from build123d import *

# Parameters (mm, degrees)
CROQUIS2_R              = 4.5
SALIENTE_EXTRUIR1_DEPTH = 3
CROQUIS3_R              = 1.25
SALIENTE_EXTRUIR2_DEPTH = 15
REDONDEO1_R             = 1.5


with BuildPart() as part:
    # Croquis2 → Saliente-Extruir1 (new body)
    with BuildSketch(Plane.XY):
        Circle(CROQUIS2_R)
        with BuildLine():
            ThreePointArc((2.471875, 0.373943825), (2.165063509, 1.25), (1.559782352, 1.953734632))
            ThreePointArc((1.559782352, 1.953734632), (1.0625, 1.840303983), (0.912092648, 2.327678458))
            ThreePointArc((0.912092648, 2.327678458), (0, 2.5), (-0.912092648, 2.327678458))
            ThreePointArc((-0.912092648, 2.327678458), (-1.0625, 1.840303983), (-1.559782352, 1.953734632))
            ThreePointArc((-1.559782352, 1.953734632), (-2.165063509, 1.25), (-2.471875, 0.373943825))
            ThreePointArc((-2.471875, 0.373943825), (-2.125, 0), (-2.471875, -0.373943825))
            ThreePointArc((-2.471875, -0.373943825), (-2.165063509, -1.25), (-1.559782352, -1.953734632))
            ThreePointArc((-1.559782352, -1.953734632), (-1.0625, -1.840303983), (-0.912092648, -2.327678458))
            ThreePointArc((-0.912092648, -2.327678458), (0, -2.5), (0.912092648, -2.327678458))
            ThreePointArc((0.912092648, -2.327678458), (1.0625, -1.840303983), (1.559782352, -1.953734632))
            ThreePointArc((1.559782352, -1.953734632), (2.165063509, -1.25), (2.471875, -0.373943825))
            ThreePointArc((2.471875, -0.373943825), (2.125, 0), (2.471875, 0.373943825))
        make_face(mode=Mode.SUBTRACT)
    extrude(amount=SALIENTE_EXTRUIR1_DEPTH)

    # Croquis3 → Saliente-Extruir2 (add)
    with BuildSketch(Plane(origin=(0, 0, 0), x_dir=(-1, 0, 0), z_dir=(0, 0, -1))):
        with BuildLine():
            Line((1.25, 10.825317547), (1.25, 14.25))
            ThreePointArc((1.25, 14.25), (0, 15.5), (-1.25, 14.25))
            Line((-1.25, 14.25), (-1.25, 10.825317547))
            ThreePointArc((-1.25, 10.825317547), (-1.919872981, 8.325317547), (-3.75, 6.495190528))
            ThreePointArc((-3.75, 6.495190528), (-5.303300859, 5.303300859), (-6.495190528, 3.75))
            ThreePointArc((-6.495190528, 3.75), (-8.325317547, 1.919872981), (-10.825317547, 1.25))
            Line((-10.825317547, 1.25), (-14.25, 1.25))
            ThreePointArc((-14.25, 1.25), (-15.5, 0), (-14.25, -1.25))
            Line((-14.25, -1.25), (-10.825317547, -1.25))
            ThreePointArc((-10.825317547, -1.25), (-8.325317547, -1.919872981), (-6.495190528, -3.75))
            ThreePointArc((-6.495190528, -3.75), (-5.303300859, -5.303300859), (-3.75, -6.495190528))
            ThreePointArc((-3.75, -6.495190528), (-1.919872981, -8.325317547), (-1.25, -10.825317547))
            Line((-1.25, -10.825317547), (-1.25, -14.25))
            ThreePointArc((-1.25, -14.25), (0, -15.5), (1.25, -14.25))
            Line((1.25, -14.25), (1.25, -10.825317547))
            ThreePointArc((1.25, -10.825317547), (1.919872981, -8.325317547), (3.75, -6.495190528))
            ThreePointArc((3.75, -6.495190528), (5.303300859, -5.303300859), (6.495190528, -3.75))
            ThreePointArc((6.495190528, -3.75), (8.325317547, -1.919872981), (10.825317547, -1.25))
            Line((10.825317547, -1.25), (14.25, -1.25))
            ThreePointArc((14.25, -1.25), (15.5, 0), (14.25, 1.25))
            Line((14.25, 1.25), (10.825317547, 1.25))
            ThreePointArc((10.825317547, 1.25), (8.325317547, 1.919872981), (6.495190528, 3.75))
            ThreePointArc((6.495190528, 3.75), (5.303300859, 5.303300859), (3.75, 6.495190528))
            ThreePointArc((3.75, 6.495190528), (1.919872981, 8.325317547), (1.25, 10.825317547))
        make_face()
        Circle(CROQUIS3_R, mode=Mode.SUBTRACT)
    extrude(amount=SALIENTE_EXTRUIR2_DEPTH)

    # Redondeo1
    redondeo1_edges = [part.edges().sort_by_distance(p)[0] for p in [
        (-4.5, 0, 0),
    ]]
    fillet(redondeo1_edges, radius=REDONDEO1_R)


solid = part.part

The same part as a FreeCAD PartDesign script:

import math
import FreeCAD as App
import Part
import Sketcher

V = App.Vector


def edges_at(feature, points):
    """Names of the edges that pass closest to the given points."""
    edges = feature.Shape.Edges
    near = lambda p: min(range(len(edges)), key=lambda i: edges[i].distToShape(Part.Vertex(*p))[0])
    return sorted({f"Edge{near(p) + 1}" for p in points})

doc = App.newDocument("Part")
params = doc.addObject("Spreadsheet::Sheet", "Params")
for row, (alias, value) in enumerate([
    ("sketch1_diameter", "9 mm"),
    ("sketch1_radius", "2.5 mm"),
    ("pad1_length", "3 mm"),
    ("sketch2_radius", "5 mm"),
    ("sketch2_diameter", "2.5 mm"),
    ("sketch2_radius2", "7.5 mm"),
    ("pad2_length", "15 mm"),
    ("fillet_radius", "1.5 mm"),
], start=1):
    params.set(f"A{row}", alias)
    params.set(f"B{row}", "=" + value)
    params.setAlias(f"B{row}", alias)

body = doc.addObject("PartDesign::Body", "Body")

sketch1 = body.newObject("Sketcher::SketchObject", "Sketch")
sketch1.AttachmentSupport = (doc.getObject("XY_Plane"), [""])
sketch1.MapMode = "FlatFace"
sketch1.addGeometry([
    Part.Circle(V(0, 0, 0), V(0, 0, 1), 4.5),
    Part.ArcOfCircle(Part.Circle(V(0, 0, 0), V(0, 0, 1), 2.5), math.radians(9), math.radians(51)),
    Part.ArcOfCircle(Part.Circle(V(2.5, 0, 0), V(0, 0, 1), 0.38), math.radians(94), math.radians(266)),
    Part.ArcOfCircle(Part.Circle(V(0, 0, 0), V(0, 0, 1), 2.5), math.radians(-51), math.radians(-9)),
    Part.ArcOfCircle(Part.Circle(V(1.25, -2.17, 0), V(0, 0, 1), 0.38), math.radians(34), math.radians(206)),
    Part.ArcOfCircle(Part.Circle(V(0, 0, 0), V(0, 0, 1), 2.5), math.radians(-111), math.radians(-69)),
    Part.ArcOfCircle(Part.Circle(V(-1.25, -2.17, 0), V(0, 0, 1), 0.38), math.radians(-26), math.radians(146)),
    Part.ArcOfCircle(Part.Circle(V(0, 0, 0), V(0, 0, 1), 2.5), math.radians(-171), math.radians(-129)),
    Part.ArcOfCircle(Part.Circle(V(-2.5, 0, 0), V(0, 0, 1), 0.38), math.radians(-86), math.radians(86)),
    Part.ArcOfCircle(Part.Circle(V(0, 0, 0), V(0, 0, 1), 2.5), math.radians(129), math.radians(171)),
    Part.ArcOfCircle(Part.Circle(V(-1.25, 2.17, 0), V(0, 0, 1), 0.38), math.radians(-146), math.radians(26)),
    Part.ArcOfCircle(Part.Circle(V(0, 0, 0), V(0, 0, 1), 2.5), math.radians(69), math.radians(111)),
    Part.ArcOfCircle(Part.Circle(V(1.25, 2.17, 0), V(0, 0, 1), 0.38), math.radians(154), math.radians(326)),
], False)
sketch1.addConstraint([
    Sketcher.Constraint("Coincident", 1, 1, 2, 1),
    Sketcher.Constraint("Coincident", 2, 2, 3, 2),
    Sketcher.Constraint("Coincident", 3, 1, 4, 1),
    Sketcher.Constraint("Coincident", 4, 2, 5, 2),
    Sketcher.Constraint("Coincident", 5, 1, 6, 1),
    Sketcher.Constraint("Coincident", 6, 2, 7, 2),
    Sketcher.Constraint("Coincident", 7, 1, 8, 1),
    Sketcher.Constraint("Coincident", 8, 2, 9, 2),
    Sketcher.Constraint("Coincident", 9, 1, 10, 1),
    Sketcher.Constraint("Coincident", 10, 2, 11, 2),
    Sketcher.Constraint("Coincident", 11, 1, 12, 1),
    Sketcher.Constraint("Coincident", 12, 2, 1, 2),
    Sketcher.Constraint("Coincident", 0, 3, -1, 1),
    Sketcher.Constraint("Coincident", 1, 3, -1, 1),
    Sketcher.Constraint("Coincident", 3, 3, -1, 1),
    Sketcher.Constraint("Coincident", 5, 3, -1, 1),
    Sketcher.Constraint("Coincident", 7, 3, -1, 1),
    Sketcher.Constraint("Coincident", 9, 3, -1, 1),
    Sketcher.Constraint("Coincident", 11, 3, -1, 1),
    Sketcher.Constraint("Equal", 1, 3),
    Sketcher.Constraint("Equal", 2, 4),
    Sketcher.Constraint("Equal", 3, 5),
    Sketcher.Constraint("Equal", 4, 6),
    Sketcher.Constraint("Equal", 5, 7),
    Sketcher.Constraint("Equal", 6, 8),
    Sketcher.Constraint("Equal", 7, 9),
    Sketcher.Constraint("Equal", 8, 10),
    Sketcher.Constraint("Equal", 9, 11),
    Sketcher.Constraint("Equal", 10, 12),
    Sketcher.Constraint("Symmetric", 2, 3, 8, 3, -1, 1),
    Sketcher.Constraint("Symmetric", 4, 3, 10, 3, -1, 1),
    Sketcher.Constraint("Symmetric", 6, 3, 12, 3, -1, 1),
    Sketcher.Constraint("Symmetric", 4, 3, 6, 3, -2),
    Sketcher.Constraint("PointOnObject", 2, 3, -1),
    Sketcher.Constraint("Diameter", 0, 9.0),
    Sketcher.Constraint("Radius", 1, 2.5),
    Sketcher.Constraint("Radius", 2, 0.375),
    Sketcher.Constraint("DistanceX", -1, 1, 2, 3, 2.5),
    Sketcher.Constraint("DistanceX", 6, 3, 4, 3, 2.5),
    Sketcher.Constraint("DistanceY", 4, 2, -1, 1, 2.327678),
])
sketch1.setExpression("Constraints[34]", "Params.sketch1_diameter")
sketch1.setExpression("Constraints[35]", "Params.sketch1_radius")
pad1 = body.newObject("PartDesign::Pad", "Pad")
pad1.Profile = sketch1
pad1.setExpression("Length", "Params.pad1_length")

sketch2 = body.newObject("Sketcher::SketchObject", "Sketch001")
sketch2.AttachmentSupport = (doc.getObject("XY_Plane"), [""])
sketch2.MapMode = "FlatFace"
sketch2.addGeometry([
    Part.LineSegment(V(-1.2, 10.8, 0), V(-1.2, 14.2, 0)),
    Part.ArcOfCircle(Part.Circle(V(0, 14.2, 0), V(0, 0, 1), 1.2), math.radians(0), math.radians(180)),
    Part.LineSegment(V(1.2, 14.2, 0), V(1.2, 10.8, 0)),
    Part.ArcOfCircle(Part.Circle(V(6.2, 10.8, 0), V(0, 0, 1), 5), math.radians(180), math.radians(240)),
    Part.ArcOfCircle(Part.Circle(V(0, 0, 0), V(0, 0, 1), 7.5), math.radians(30), math.radians(60)),
    Part.ArcOfCircle(Part.Circle(V(10.8, 6.2, 0), V(0, 0, 1), 5), math.radians(-150), math.radians(-90)),
    Part.LineSegment(V(10.8, 1.2, 0), V(14.2, 1.2, 0)),
    Part.ArcOfCircle(Part.Circle(V(14.2, 0, 0), V(0, 0, 1), 1.2), math.radians(-90), math.radians(90)),
    Part.LineSegment(V(14.2, -1.2, 0), V(10.8, -1.2, 0)),
    Part.ArcOfCircle(Part.Circle(V(10.8, -6.2, 0), V(0, 0, 1), 5), math.radians(90), math.radians(150)),
    Part.ArcOfCircle(Part.Circle(V(0, 0, 0), V(0, 0, 1), 7.5), math.radians(-60), math.radians(-30)),
    Part.ArcOfCircle(Part.Circle(V(6.2, -10.8, 0), V(0, 0, 1), 5), math.radians(120), math.radians(180)),
    Part.LineSegment(V(1.2, -10.8, 0), V(1.2, -14.2, 0)),
    Part.ArcOfCircle(Part.Circle(V(0, -14.2, 0), V(0, 0, 1), 1.2), math.radians(180), math.radians(360)),
    Part.LineSegment(V(-1.2, -14.2, 0), V(-1.2, -10.8, 0)),
    Part.ArcOfCircle(Part.Circle(V(-6.2, -10.8, 0), V(0, 0, 1), 5), math.radians(0), math.radians(60)),
    Part.ArcOfCircle(Part.Circle(V(0, 0, 0), V(0, 0, 1), 7.5), math.radians(-150), math.radians(-120)),
    Part.ArcOfCircle(Part.Circle(V(-10.8, -6.2, 0), V(0, 0, 1), 5), math.radians(30), math.radians(90)),
    Part.LineSegment(V(-10.8, -1.2, 0), V(-14.2, -1.2, 0)),
    Part.ArcOfCircle(Part.Circle(V(-14.2, 0, 0), V(0, 0, 1), 1.2), math.radians(90), math.radians(270)),
    Part.LineSegment(V(-14.2, 1.2, 0), V(-10.8, 1.2, 0)),
    Part.ArcOfCircle(Part.Circle(V(-10.8, 6.2, 0), V(0, 0, 1), 5), math.radians(-90), math.radians(-30)),
    Part.ArcOfCircle(Part.Circle(V(0, 0, 0), V(0, 0, 1), 7.5), math.radians(120), math.radians(150)),
    Part.ArcOfCircle(Part.Circle(V(-6.2, 10.8, 0), V(0, 0, 1), 5), math.radians(-60), math.radians(0)),
    Part.Circle(V(0, 0, 0), V(0, 0, 1), 1.2),
], False)
sketch2.addConstraint([
    Sketcher.Constraint("Tangent", 0, 2, 1, 2),
    Sketcher.Constraint("Tangent", 1, 1, 2, 1),
    Sketcher.Constraint("Tangent", 2, 2, 3, 1),
    Sketcher.Constraint("Tangent", 3, 2, 4, 2),
    Sketcher.Constraint("Tangent", 4, 1, 5, 1),
    Sketcher.Constraint("Tangent", 5, 2, 6, 1),
    Sketcher.Constraint("Tangent", 6, 2, 7, 2),
    Sketcher.Constraint("Tangent", 7, 1, 8, 1),
    Sketcher.Constraint("Tangent", 8, 2, 9, 1),
    Sketcher.Constraint("Tangent", 9, 2, 10, 2),
    Sketcher.Constraint("Tangent", 10, 1, 11, 1),
    Sketcher.Constraint("Tangent", 11, 2, 12, 1),
    Sketcher.Constraint("Tangent", 12, 2, 13, 2),
    Sketcher.Constraint("Tangent", 13, 1, 14, 1),
    Sketcher.Constraint("Tangent", 14, 2, 15, 1),
    Sketcher.Constraint("Tangent", 15, 2, 16, 2),
    Sketcher.Constraint("Tangent", 16, 1, 17, 1),
    Sketcher.Constraint("Tangent", 17, 2, 18, 1),
    Sketcher.Constraint("Tangent", 18, 2, 19, 2),
    Sketcher.Constraint("Tangent", 19, 1, 20, 1),
    Sketcher.Constraint("Tangent", 20, 2, 21, 1),
    Sketcher.Constraint("Tangent", 21, 2, 22, 2),
    Sketcher.Constraint("Tangent", 22, 1, 23, 1),
    Sketcher.Constraint("Tangent", 23, 2, 0, 1),
    Sketcher.Constraint("Vertical", 0),
    Sketcher.Constraint("Vertical", 2),
    Sketcher.Constraint("Horizontal", 6),
    Sketcher.Constraint("Horizontal", 8),
    Sketcher.Constraint("Vertical", 12),
    Sketcher.Constraint("Vertical", 14),
    Sketcher.Constraint("Horizontal", 18),
    Sketcher.Constraint("Horizontal", 20),
    Sketcher.Constraint("Coincident", 4, 3, -1, 1),
    Sketcher.Constraint("Coincident", 10, 3, -1, 1),
    Sketcher.Constraint("Coincident", 16, 3, -1, 1),
    Sketcher.Constraint("Coincident", 22, 3, -1, 1),
    Sketcher.Constraint("Coincident", 24, 3, -1, 1),
    Sketcher.Constraint("Equal", 3, 5),
    Sketcher.Constraint("Equal", 1, 7),
    Sketcher.Constraint("Equal", 5, 9),
    Sketcher.Constraint("Equal", 4, 10),
    Sketcher.Constraint("Equal", 9, 11),
    Sketcher.Constraint("Equal", 7, 13),
    Sketcher.Constraint("Equal", 11, 15),
    Sketcher.Constraint("Equal", 10, 16),
    Sketcher.Constraint("Equal", 15, 17),
    Sketcher.Constraint("Equal", 13, 19),
    Sketcher.Constraint("Equal", 17, 21),
    Sketcher.Constraint("Equal", 16, 22),
    Sketcher.Constraint("Equal", 21, 23),
    Sketcher.Constraint("Equal", 19, 24),
    Sketcher.Constraint("Symmetric", 1, 3, 13, 3, -1, 1),
    Sketcher.Constraint("Symmetric", 7, 3, 19, 3, -1, 1),
    Sketcher.Constraint("PointOnObject", 1, 3, -2),
    Sketcher.Constraint("PointOnObject", 7, 3, -1),
    Sketcher.Constraint("Equal", 20, 0),
    Sketcher.Constraint("Radius", 3, 5.0),
    Sketcher.Constraint("Diameter", 24, 2.5),
    Sketcher.Constraint("Radius", 4, 7.5),
    Sketcher.Constraint("DistanceY", 5, 3, 1, 3, 8.0),
])
sketch2.setExpression("Constraints[56]", "Params.sketch2_radius")
sketch2.setExpression("Constraints[57]", "Params.sketch2_diameter")
sketch2.setExpression("Constraints[58]", "Params.sketch2_radius2")
pad2 = body.newObject("PartDesign::Pad", "Pad001")
pad2.Profile = sketch2
pad2.setExpression("Length", "Params.pad2_length")
pad2.Reversed = True
doc.recompute()

fillet = body.newObject("PartDesign::Fillet", "Fillet")
fillet.Base = (pad2, edges_at(pad2, [(-4.5, 0, 0)]))
fillet.setExpression("Radius", "Params.fillet_radius")

doc.recompute()
